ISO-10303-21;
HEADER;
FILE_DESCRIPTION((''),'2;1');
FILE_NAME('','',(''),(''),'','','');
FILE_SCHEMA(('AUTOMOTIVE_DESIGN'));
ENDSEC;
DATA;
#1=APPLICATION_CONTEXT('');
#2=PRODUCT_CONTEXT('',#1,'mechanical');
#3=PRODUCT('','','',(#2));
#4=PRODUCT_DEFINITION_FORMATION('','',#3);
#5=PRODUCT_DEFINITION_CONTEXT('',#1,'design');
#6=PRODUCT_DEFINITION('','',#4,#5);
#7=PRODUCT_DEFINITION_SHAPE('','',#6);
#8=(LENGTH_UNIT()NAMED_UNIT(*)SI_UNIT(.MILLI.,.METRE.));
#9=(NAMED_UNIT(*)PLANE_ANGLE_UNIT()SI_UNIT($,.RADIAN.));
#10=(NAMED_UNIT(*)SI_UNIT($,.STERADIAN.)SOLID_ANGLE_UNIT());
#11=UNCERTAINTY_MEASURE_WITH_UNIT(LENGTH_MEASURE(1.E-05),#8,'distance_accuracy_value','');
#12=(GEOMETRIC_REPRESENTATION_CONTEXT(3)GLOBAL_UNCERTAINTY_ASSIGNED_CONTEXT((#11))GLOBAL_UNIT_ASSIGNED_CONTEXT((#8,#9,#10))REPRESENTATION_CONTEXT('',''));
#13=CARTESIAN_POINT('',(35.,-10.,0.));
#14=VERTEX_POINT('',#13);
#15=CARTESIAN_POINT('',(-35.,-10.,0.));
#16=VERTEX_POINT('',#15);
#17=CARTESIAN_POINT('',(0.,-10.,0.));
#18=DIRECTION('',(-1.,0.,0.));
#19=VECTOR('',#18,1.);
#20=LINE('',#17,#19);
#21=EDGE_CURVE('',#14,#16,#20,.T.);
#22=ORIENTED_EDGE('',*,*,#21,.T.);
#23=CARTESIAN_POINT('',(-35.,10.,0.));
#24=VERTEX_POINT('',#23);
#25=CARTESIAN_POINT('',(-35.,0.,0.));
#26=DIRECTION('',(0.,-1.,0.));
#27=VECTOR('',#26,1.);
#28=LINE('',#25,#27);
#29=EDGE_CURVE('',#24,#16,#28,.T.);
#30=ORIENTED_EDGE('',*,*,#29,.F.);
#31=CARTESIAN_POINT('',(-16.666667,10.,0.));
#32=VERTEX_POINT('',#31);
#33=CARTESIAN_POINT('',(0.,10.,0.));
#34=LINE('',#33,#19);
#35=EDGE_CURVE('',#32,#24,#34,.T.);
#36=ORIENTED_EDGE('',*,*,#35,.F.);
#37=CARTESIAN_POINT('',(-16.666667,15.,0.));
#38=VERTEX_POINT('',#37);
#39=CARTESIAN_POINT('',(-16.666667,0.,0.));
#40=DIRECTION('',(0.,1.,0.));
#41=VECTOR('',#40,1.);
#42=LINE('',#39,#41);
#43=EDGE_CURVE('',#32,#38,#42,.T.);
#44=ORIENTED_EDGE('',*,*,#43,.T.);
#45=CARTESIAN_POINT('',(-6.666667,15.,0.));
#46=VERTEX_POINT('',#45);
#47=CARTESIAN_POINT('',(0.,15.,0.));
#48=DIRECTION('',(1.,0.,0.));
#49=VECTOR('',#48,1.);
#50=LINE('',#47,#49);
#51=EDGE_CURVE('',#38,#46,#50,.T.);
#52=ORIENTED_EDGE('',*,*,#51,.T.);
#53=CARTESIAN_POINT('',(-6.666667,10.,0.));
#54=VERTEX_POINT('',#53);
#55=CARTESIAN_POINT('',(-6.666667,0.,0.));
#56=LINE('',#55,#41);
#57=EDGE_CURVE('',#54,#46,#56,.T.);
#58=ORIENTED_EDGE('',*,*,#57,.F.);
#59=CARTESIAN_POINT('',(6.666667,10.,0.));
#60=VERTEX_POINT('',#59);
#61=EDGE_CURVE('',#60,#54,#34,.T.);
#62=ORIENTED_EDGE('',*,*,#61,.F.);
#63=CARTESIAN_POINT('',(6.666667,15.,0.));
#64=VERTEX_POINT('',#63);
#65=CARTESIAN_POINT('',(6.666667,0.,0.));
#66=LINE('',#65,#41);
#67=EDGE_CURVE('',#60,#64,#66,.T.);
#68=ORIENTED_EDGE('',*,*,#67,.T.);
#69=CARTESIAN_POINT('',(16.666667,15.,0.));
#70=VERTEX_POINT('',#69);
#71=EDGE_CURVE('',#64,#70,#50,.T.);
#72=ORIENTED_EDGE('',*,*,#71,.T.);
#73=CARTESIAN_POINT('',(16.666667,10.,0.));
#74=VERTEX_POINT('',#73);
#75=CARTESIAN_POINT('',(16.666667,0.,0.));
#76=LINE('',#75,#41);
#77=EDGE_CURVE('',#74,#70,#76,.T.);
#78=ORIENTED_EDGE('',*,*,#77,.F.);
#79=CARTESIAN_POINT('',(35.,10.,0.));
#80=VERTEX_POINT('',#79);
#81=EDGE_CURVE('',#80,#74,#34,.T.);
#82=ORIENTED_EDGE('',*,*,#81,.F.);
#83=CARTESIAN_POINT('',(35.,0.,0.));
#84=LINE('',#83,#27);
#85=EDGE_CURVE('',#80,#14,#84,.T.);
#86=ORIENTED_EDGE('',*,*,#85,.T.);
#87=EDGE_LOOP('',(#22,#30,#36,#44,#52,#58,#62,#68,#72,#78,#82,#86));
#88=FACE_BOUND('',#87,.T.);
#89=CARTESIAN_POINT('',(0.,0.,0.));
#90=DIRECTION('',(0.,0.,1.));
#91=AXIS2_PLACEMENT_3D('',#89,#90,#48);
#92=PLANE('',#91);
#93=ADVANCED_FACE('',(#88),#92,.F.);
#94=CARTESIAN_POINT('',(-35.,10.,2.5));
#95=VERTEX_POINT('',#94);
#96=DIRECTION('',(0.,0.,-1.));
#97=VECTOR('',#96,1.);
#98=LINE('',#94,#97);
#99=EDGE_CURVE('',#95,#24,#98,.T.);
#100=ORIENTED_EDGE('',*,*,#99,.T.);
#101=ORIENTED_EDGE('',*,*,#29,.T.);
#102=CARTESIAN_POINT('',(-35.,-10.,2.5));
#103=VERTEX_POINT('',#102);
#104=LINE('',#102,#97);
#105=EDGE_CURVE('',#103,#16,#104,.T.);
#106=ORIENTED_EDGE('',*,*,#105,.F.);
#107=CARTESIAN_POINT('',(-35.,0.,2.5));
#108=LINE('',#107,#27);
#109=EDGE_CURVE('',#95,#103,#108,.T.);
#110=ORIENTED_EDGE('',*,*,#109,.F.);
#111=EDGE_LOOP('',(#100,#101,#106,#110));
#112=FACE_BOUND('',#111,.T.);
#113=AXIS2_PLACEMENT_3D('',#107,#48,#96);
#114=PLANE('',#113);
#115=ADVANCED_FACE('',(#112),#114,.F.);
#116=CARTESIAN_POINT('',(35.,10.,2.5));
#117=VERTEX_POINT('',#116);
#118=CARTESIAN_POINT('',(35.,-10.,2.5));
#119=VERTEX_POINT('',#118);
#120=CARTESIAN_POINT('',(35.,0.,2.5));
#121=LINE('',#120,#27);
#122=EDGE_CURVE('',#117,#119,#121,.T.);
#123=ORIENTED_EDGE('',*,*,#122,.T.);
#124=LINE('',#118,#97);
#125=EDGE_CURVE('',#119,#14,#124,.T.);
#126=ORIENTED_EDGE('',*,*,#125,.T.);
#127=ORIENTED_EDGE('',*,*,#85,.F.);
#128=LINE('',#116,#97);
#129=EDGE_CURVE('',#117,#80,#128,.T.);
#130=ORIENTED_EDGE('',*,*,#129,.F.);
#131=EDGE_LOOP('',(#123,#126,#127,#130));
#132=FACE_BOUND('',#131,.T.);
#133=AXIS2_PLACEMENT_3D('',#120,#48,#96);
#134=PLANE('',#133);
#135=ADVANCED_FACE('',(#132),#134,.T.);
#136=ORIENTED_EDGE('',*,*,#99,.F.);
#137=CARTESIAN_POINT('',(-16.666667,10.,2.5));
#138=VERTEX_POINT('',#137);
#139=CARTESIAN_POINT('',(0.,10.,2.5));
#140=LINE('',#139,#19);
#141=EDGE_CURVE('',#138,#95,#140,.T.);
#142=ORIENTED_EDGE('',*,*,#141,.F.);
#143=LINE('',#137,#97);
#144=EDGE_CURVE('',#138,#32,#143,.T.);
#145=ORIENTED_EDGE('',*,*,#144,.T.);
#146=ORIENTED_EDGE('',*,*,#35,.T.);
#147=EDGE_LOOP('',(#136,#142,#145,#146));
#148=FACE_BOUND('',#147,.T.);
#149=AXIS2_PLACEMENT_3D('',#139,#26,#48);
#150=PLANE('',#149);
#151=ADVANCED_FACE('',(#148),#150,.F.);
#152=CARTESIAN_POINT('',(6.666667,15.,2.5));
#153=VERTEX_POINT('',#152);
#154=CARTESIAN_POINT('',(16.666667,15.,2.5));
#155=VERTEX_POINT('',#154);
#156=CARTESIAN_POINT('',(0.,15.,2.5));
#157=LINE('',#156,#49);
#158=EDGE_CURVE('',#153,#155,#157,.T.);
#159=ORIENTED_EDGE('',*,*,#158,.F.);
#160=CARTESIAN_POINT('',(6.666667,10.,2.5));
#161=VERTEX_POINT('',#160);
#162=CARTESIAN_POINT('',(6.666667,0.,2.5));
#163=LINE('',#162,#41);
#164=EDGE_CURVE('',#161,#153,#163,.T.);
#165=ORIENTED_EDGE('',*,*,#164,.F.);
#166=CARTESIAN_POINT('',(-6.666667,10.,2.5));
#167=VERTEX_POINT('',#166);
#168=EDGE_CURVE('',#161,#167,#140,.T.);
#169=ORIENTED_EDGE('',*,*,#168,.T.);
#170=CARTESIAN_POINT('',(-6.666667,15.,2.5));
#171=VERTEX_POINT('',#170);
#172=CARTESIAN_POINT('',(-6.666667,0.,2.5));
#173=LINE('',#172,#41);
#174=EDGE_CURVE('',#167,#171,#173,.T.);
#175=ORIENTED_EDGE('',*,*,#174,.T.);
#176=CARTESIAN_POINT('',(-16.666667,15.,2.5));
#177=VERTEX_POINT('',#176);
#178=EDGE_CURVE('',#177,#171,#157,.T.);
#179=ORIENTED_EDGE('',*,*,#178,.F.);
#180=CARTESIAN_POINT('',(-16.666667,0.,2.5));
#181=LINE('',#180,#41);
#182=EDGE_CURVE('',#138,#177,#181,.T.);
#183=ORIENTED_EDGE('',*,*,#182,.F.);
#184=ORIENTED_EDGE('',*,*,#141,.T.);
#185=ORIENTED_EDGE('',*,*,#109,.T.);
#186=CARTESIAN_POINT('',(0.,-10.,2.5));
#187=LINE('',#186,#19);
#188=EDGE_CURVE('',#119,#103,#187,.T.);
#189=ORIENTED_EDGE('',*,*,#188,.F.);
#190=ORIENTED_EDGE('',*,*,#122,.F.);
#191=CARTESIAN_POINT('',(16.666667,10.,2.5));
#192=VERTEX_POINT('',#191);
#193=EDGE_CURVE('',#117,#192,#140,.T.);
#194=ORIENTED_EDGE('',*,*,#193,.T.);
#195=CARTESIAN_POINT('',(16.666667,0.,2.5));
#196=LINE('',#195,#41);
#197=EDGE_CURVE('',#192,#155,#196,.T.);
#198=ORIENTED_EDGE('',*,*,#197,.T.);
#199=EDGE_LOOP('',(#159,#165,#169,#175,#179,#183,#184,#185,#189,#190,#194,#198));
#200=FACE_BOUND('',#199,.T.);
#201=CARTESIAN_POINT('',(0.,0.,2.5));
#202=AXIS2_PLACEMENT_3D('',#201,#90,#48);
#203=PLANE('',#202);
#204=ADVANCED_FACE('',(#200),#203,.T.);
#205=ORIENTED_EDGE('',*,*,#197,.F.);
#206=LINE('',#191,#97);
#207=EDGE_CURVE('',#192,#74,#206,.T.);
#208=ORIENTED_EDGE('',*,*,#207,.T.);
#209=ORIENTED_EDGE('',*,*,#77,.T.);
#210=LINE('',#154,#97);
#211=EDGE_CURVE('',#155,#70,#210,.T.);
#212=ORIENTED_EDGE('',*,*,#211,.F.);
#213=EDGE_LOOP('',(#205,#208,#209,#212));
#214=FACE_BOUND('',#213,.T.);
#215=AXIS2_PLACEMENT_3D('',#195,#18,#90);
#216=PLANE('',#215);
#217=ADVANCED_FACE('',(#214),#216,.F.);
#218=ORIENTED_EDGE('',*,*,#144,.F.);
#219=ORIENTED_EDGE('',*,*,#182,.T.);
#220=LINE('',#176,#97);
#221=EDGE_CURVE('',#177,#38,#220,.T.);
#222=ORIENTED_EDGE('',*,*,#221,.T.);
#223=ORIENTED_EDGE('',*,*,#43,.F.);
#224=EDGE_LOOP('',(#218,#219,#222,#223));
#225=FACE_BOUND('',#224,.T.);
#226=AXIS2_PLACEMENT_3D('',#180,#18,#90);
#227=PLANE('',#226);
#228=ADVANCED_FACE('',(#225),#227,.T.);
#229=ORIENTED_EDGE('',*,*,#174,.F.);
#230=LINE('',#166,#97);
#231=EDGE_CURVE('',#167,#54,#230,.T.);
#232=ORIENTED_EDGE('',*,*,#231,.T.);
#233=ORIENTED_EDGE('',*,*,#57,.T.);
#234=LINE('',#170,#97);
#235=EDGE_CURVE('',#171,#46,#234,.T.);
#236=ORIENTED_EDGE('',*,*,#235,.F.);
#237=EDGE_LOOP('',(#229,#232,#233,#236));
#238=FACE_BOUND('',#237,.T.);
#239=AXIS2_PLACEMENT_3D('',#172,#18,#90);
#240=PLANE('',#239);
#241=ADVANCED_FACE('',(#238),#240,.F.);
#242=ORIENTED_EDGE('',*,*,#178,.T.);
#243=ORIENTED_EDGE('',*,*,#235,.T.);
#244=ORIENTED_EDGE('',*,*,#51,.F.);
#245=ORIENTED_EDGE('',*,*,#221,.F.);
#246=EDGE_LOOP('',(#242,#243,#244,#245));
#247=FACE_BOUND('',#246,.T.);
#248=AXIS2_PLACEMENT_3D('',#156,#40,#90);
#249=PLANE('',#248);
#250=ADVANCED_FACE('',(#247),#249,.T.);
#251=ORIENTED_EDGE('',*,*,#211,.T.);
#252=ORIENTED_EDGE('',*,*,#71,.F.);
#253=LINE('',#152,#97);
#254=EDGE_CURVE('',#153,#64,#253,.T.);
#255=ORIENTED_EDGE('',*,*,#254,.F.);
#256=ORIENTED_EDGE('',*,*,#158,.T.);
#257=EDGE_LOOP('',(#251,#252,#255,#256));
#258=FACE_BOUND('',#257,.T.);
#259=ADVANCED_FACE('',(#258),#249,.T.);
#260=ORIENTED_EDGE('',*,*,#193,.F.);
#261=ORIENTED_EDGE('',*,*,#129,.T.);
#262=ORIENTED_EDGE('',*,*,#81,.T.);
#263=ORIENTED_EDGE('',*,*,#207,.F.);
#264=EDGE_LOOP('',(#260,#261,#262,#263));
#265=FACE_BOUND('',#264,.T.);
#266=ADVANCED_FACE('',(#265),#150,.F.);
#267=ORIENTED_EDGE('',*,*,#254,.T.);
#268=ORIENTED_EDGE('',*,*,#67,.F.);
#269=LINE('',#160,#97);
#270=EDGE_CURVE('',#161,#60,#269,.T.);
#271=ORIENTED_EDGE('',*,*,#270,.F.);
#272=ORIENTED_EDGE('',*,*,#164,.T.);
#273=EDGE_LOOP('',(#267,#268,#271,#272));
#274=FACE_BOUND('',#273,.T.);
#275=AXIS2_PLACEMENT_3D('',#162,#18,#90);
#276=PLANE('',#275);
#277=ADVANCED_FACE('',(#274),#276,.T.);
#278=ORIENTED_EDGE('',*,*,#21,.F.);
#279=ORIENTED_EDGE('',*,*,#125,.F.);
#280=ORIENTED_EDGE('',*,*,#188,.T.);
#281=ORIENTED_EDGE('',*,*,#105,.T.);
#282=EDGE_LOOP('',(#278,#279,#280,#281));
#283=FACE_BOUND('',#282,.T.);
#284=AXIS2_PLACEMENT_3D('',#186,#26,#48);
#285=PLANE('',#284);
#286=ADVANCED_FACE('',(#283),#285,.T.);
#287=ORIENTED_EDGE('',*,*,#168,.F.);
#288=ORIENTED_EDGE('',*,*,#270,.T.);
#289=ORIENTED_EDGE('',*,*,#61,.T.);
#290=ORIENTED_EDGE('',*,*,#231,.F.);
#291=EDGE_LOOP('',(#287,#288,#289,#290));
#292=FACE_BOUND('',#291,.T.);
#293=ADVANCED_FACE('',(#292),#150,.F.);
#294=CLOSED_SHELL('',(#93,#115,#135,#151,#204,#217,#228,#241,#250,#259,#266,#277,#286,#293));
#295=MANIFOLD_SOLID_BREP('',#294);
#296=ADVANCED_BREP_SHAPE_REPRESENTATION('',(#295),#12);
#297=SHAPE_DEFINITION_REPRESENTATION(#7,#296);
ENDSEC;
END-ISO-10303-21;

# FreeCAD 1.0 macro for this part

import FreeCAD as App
import Part
import Sketcher

V = App.Vector
Q = App.Units.Quantity

doc = App.newDocument("Part")
body = doc.addObject("PartDesign::Body", "Body")

# Sketch on XY plane
sketch1 = body.newObject("Sketcher::SketchObject", "Sketch")
sketch1.AttachmentSupport = (doc.getObject("XY_Plane"), [""])
sketch1.MapMode = "FlatFace"
sketch1.addGeometry(Part.LineSegment(V(-35, 10, 0), V(-35, -10, 0)), False)
sketch1.addGeometry(Part.LineSegment(V(-35, -10, 0), V(35, -10, 0)), False)
sketch1.addGeometry(Part.LineSegment(V(35, -10, 0), V(35, 10, 0)), False)
sketch1.addGeometry(Part.LineSegment(V(35, 10, 0), V(17, 10, 0)), False)
sketch1.addGeometry(Part.LineSegment(V(17, 10, 0), V(17, 15, 0)), False)
sketch1.addGeometry(Part.LineSegment(V(17, 15, 0), V(7, 15, 0)), False)
sketch1.addGeometry(Part.LineSegment(V(7, 15, 0), V(7, 10, 0)), False)
sketch1.addGeometry(Part.LineSegment(V(7, 10, 0), V(-7, 10, 0)), False)
sketch1.addGeometry(Part.LineSegment(V(-7, 10, 0), V(-7, 15, 0)), False)
sketch1.addGeometry(Part.LineSegment(V(-7, 15, 0), V(-17, 15, 0)), False)
sketch1.addGeometry(Part.LineSegment(V(-17, 15, 0), V(-17, 10, 0)), False)
sketch1.addGeometry(Part.LineSegment(V(-17, 10, 0), V(-35, 10, 0)), False)
sketch1.addConstraint(Sketcher.Constraint("Coincident", 0, 2, 1, 1))
sketch1.addConstraint(Sketcher.Constraint("Coincident", 1, 2, 2, 1))
sketch1.addConstraint(Sketcher.Constraint("Coincident", 2, 2, 3, 1))
sketch1.addConstraint(Sketcher.Constraint("Coincident", 3, 2, 4, 1))
sketch1.addConstraint(Sketcher.Constraint("Coincident", 4, 2, 5, 1))
sketch1.addConstraint(Sketcher.Constraint("Coincident", 5, 2, 6, 1))
sketch1.addConstraint(Sketcher.Constraint("Coincident", 6, 2, 7, 1))
sketch1.addConstraint(Sketcher.Constraint("Coincident", 7, 2, 8, 1))
sketch1.addConstraint(Sketcher.Constraint("Coincident", 8, 2, 9, 1))
sketch1.addConstraint(Sketcher.Constraint("Coincident", 9, 2, 10, 1))
sketch1.addConstraint(Sketcher.Constraint("Coincident", 10, 2, 11, 1))
sketch1.addConstraint(Sketcher.Constraint("Coincident", 11, 2, 0, 1))
sketch1.addConstraint(Sketcher.Constraint("Vertical", 0))
sketch1.addConstraint(Sketcher.Constraint("Horizontal", 1))
sketch1.addConstraint(Sketcher.Constraint("Vertical", 2))
sketch1.addConstraint(Sketcher.Constraint("Horizontal", 3))
sketch1.addConstraint(Sketcher.Constraint("Vertical", 4))
sketch1.addConstraint(Sketcher.Constraint("Horizontal", 5))
sketch1.addConstraint(Sketcher.Constraint("Vertical", 6))
sketch1.addConstraint(Sketcher.Constraint("Horizontal", 7))
sketch1.addConstraint(Sketcher.Constraint("Vertical", 8))
sketch1.addConstraint(Sketcher.Constraint("Horizontal", 9))
sketch1.addConstraint(Sketcher.Constraint("Vertical", 10))
sketch1.addConstraint(Sketcher.Constraint("Horizontal", 11))
sketch1.addConstraint(Sketcher.Constraint("Symmetric", 0, 2, 2, 2, -1, 1))
sketch1.addConstraint(Sketcher.Constraint("Symmetric", 5, 2, 8, 2, -2))
sketch1.addConstraint(Sketcher.Constraint("Symmetric", 3, 2, 10, 2, -2))
sketch1.addConstraint(Sketcher.Constraint("Horizontal", 3, 2, 6, 2))
sketch1.addConstraint(Sketcher.Constraint("DistanceX", 1, 1, 1, 2, Q("70 mm")))
sketch1.addConstraint(Sketcher.Constraint("DistanceX", 5, 2, 5, 1, Q("10 mm")))
sketch1.addConstraint(Sketcher.Constraint("DistanceY", 0, 2, 0, 1, Q("20 mm")))
sketch1.addConstraint(Sketcher.Constraint("DistanceY", 4, 1, 4, 2, Q("5 mm")))
sketch1.addConstraint(Sketcher.Constraint("DistanceX", 3, 2, 3, 1, Q("18.333333 mm")))
pad1 = body.newObject("PartDesign::Pad", "Pad")
pad1.Profile = sketch1
pad1.Length = 2.5

doc.recompute()
